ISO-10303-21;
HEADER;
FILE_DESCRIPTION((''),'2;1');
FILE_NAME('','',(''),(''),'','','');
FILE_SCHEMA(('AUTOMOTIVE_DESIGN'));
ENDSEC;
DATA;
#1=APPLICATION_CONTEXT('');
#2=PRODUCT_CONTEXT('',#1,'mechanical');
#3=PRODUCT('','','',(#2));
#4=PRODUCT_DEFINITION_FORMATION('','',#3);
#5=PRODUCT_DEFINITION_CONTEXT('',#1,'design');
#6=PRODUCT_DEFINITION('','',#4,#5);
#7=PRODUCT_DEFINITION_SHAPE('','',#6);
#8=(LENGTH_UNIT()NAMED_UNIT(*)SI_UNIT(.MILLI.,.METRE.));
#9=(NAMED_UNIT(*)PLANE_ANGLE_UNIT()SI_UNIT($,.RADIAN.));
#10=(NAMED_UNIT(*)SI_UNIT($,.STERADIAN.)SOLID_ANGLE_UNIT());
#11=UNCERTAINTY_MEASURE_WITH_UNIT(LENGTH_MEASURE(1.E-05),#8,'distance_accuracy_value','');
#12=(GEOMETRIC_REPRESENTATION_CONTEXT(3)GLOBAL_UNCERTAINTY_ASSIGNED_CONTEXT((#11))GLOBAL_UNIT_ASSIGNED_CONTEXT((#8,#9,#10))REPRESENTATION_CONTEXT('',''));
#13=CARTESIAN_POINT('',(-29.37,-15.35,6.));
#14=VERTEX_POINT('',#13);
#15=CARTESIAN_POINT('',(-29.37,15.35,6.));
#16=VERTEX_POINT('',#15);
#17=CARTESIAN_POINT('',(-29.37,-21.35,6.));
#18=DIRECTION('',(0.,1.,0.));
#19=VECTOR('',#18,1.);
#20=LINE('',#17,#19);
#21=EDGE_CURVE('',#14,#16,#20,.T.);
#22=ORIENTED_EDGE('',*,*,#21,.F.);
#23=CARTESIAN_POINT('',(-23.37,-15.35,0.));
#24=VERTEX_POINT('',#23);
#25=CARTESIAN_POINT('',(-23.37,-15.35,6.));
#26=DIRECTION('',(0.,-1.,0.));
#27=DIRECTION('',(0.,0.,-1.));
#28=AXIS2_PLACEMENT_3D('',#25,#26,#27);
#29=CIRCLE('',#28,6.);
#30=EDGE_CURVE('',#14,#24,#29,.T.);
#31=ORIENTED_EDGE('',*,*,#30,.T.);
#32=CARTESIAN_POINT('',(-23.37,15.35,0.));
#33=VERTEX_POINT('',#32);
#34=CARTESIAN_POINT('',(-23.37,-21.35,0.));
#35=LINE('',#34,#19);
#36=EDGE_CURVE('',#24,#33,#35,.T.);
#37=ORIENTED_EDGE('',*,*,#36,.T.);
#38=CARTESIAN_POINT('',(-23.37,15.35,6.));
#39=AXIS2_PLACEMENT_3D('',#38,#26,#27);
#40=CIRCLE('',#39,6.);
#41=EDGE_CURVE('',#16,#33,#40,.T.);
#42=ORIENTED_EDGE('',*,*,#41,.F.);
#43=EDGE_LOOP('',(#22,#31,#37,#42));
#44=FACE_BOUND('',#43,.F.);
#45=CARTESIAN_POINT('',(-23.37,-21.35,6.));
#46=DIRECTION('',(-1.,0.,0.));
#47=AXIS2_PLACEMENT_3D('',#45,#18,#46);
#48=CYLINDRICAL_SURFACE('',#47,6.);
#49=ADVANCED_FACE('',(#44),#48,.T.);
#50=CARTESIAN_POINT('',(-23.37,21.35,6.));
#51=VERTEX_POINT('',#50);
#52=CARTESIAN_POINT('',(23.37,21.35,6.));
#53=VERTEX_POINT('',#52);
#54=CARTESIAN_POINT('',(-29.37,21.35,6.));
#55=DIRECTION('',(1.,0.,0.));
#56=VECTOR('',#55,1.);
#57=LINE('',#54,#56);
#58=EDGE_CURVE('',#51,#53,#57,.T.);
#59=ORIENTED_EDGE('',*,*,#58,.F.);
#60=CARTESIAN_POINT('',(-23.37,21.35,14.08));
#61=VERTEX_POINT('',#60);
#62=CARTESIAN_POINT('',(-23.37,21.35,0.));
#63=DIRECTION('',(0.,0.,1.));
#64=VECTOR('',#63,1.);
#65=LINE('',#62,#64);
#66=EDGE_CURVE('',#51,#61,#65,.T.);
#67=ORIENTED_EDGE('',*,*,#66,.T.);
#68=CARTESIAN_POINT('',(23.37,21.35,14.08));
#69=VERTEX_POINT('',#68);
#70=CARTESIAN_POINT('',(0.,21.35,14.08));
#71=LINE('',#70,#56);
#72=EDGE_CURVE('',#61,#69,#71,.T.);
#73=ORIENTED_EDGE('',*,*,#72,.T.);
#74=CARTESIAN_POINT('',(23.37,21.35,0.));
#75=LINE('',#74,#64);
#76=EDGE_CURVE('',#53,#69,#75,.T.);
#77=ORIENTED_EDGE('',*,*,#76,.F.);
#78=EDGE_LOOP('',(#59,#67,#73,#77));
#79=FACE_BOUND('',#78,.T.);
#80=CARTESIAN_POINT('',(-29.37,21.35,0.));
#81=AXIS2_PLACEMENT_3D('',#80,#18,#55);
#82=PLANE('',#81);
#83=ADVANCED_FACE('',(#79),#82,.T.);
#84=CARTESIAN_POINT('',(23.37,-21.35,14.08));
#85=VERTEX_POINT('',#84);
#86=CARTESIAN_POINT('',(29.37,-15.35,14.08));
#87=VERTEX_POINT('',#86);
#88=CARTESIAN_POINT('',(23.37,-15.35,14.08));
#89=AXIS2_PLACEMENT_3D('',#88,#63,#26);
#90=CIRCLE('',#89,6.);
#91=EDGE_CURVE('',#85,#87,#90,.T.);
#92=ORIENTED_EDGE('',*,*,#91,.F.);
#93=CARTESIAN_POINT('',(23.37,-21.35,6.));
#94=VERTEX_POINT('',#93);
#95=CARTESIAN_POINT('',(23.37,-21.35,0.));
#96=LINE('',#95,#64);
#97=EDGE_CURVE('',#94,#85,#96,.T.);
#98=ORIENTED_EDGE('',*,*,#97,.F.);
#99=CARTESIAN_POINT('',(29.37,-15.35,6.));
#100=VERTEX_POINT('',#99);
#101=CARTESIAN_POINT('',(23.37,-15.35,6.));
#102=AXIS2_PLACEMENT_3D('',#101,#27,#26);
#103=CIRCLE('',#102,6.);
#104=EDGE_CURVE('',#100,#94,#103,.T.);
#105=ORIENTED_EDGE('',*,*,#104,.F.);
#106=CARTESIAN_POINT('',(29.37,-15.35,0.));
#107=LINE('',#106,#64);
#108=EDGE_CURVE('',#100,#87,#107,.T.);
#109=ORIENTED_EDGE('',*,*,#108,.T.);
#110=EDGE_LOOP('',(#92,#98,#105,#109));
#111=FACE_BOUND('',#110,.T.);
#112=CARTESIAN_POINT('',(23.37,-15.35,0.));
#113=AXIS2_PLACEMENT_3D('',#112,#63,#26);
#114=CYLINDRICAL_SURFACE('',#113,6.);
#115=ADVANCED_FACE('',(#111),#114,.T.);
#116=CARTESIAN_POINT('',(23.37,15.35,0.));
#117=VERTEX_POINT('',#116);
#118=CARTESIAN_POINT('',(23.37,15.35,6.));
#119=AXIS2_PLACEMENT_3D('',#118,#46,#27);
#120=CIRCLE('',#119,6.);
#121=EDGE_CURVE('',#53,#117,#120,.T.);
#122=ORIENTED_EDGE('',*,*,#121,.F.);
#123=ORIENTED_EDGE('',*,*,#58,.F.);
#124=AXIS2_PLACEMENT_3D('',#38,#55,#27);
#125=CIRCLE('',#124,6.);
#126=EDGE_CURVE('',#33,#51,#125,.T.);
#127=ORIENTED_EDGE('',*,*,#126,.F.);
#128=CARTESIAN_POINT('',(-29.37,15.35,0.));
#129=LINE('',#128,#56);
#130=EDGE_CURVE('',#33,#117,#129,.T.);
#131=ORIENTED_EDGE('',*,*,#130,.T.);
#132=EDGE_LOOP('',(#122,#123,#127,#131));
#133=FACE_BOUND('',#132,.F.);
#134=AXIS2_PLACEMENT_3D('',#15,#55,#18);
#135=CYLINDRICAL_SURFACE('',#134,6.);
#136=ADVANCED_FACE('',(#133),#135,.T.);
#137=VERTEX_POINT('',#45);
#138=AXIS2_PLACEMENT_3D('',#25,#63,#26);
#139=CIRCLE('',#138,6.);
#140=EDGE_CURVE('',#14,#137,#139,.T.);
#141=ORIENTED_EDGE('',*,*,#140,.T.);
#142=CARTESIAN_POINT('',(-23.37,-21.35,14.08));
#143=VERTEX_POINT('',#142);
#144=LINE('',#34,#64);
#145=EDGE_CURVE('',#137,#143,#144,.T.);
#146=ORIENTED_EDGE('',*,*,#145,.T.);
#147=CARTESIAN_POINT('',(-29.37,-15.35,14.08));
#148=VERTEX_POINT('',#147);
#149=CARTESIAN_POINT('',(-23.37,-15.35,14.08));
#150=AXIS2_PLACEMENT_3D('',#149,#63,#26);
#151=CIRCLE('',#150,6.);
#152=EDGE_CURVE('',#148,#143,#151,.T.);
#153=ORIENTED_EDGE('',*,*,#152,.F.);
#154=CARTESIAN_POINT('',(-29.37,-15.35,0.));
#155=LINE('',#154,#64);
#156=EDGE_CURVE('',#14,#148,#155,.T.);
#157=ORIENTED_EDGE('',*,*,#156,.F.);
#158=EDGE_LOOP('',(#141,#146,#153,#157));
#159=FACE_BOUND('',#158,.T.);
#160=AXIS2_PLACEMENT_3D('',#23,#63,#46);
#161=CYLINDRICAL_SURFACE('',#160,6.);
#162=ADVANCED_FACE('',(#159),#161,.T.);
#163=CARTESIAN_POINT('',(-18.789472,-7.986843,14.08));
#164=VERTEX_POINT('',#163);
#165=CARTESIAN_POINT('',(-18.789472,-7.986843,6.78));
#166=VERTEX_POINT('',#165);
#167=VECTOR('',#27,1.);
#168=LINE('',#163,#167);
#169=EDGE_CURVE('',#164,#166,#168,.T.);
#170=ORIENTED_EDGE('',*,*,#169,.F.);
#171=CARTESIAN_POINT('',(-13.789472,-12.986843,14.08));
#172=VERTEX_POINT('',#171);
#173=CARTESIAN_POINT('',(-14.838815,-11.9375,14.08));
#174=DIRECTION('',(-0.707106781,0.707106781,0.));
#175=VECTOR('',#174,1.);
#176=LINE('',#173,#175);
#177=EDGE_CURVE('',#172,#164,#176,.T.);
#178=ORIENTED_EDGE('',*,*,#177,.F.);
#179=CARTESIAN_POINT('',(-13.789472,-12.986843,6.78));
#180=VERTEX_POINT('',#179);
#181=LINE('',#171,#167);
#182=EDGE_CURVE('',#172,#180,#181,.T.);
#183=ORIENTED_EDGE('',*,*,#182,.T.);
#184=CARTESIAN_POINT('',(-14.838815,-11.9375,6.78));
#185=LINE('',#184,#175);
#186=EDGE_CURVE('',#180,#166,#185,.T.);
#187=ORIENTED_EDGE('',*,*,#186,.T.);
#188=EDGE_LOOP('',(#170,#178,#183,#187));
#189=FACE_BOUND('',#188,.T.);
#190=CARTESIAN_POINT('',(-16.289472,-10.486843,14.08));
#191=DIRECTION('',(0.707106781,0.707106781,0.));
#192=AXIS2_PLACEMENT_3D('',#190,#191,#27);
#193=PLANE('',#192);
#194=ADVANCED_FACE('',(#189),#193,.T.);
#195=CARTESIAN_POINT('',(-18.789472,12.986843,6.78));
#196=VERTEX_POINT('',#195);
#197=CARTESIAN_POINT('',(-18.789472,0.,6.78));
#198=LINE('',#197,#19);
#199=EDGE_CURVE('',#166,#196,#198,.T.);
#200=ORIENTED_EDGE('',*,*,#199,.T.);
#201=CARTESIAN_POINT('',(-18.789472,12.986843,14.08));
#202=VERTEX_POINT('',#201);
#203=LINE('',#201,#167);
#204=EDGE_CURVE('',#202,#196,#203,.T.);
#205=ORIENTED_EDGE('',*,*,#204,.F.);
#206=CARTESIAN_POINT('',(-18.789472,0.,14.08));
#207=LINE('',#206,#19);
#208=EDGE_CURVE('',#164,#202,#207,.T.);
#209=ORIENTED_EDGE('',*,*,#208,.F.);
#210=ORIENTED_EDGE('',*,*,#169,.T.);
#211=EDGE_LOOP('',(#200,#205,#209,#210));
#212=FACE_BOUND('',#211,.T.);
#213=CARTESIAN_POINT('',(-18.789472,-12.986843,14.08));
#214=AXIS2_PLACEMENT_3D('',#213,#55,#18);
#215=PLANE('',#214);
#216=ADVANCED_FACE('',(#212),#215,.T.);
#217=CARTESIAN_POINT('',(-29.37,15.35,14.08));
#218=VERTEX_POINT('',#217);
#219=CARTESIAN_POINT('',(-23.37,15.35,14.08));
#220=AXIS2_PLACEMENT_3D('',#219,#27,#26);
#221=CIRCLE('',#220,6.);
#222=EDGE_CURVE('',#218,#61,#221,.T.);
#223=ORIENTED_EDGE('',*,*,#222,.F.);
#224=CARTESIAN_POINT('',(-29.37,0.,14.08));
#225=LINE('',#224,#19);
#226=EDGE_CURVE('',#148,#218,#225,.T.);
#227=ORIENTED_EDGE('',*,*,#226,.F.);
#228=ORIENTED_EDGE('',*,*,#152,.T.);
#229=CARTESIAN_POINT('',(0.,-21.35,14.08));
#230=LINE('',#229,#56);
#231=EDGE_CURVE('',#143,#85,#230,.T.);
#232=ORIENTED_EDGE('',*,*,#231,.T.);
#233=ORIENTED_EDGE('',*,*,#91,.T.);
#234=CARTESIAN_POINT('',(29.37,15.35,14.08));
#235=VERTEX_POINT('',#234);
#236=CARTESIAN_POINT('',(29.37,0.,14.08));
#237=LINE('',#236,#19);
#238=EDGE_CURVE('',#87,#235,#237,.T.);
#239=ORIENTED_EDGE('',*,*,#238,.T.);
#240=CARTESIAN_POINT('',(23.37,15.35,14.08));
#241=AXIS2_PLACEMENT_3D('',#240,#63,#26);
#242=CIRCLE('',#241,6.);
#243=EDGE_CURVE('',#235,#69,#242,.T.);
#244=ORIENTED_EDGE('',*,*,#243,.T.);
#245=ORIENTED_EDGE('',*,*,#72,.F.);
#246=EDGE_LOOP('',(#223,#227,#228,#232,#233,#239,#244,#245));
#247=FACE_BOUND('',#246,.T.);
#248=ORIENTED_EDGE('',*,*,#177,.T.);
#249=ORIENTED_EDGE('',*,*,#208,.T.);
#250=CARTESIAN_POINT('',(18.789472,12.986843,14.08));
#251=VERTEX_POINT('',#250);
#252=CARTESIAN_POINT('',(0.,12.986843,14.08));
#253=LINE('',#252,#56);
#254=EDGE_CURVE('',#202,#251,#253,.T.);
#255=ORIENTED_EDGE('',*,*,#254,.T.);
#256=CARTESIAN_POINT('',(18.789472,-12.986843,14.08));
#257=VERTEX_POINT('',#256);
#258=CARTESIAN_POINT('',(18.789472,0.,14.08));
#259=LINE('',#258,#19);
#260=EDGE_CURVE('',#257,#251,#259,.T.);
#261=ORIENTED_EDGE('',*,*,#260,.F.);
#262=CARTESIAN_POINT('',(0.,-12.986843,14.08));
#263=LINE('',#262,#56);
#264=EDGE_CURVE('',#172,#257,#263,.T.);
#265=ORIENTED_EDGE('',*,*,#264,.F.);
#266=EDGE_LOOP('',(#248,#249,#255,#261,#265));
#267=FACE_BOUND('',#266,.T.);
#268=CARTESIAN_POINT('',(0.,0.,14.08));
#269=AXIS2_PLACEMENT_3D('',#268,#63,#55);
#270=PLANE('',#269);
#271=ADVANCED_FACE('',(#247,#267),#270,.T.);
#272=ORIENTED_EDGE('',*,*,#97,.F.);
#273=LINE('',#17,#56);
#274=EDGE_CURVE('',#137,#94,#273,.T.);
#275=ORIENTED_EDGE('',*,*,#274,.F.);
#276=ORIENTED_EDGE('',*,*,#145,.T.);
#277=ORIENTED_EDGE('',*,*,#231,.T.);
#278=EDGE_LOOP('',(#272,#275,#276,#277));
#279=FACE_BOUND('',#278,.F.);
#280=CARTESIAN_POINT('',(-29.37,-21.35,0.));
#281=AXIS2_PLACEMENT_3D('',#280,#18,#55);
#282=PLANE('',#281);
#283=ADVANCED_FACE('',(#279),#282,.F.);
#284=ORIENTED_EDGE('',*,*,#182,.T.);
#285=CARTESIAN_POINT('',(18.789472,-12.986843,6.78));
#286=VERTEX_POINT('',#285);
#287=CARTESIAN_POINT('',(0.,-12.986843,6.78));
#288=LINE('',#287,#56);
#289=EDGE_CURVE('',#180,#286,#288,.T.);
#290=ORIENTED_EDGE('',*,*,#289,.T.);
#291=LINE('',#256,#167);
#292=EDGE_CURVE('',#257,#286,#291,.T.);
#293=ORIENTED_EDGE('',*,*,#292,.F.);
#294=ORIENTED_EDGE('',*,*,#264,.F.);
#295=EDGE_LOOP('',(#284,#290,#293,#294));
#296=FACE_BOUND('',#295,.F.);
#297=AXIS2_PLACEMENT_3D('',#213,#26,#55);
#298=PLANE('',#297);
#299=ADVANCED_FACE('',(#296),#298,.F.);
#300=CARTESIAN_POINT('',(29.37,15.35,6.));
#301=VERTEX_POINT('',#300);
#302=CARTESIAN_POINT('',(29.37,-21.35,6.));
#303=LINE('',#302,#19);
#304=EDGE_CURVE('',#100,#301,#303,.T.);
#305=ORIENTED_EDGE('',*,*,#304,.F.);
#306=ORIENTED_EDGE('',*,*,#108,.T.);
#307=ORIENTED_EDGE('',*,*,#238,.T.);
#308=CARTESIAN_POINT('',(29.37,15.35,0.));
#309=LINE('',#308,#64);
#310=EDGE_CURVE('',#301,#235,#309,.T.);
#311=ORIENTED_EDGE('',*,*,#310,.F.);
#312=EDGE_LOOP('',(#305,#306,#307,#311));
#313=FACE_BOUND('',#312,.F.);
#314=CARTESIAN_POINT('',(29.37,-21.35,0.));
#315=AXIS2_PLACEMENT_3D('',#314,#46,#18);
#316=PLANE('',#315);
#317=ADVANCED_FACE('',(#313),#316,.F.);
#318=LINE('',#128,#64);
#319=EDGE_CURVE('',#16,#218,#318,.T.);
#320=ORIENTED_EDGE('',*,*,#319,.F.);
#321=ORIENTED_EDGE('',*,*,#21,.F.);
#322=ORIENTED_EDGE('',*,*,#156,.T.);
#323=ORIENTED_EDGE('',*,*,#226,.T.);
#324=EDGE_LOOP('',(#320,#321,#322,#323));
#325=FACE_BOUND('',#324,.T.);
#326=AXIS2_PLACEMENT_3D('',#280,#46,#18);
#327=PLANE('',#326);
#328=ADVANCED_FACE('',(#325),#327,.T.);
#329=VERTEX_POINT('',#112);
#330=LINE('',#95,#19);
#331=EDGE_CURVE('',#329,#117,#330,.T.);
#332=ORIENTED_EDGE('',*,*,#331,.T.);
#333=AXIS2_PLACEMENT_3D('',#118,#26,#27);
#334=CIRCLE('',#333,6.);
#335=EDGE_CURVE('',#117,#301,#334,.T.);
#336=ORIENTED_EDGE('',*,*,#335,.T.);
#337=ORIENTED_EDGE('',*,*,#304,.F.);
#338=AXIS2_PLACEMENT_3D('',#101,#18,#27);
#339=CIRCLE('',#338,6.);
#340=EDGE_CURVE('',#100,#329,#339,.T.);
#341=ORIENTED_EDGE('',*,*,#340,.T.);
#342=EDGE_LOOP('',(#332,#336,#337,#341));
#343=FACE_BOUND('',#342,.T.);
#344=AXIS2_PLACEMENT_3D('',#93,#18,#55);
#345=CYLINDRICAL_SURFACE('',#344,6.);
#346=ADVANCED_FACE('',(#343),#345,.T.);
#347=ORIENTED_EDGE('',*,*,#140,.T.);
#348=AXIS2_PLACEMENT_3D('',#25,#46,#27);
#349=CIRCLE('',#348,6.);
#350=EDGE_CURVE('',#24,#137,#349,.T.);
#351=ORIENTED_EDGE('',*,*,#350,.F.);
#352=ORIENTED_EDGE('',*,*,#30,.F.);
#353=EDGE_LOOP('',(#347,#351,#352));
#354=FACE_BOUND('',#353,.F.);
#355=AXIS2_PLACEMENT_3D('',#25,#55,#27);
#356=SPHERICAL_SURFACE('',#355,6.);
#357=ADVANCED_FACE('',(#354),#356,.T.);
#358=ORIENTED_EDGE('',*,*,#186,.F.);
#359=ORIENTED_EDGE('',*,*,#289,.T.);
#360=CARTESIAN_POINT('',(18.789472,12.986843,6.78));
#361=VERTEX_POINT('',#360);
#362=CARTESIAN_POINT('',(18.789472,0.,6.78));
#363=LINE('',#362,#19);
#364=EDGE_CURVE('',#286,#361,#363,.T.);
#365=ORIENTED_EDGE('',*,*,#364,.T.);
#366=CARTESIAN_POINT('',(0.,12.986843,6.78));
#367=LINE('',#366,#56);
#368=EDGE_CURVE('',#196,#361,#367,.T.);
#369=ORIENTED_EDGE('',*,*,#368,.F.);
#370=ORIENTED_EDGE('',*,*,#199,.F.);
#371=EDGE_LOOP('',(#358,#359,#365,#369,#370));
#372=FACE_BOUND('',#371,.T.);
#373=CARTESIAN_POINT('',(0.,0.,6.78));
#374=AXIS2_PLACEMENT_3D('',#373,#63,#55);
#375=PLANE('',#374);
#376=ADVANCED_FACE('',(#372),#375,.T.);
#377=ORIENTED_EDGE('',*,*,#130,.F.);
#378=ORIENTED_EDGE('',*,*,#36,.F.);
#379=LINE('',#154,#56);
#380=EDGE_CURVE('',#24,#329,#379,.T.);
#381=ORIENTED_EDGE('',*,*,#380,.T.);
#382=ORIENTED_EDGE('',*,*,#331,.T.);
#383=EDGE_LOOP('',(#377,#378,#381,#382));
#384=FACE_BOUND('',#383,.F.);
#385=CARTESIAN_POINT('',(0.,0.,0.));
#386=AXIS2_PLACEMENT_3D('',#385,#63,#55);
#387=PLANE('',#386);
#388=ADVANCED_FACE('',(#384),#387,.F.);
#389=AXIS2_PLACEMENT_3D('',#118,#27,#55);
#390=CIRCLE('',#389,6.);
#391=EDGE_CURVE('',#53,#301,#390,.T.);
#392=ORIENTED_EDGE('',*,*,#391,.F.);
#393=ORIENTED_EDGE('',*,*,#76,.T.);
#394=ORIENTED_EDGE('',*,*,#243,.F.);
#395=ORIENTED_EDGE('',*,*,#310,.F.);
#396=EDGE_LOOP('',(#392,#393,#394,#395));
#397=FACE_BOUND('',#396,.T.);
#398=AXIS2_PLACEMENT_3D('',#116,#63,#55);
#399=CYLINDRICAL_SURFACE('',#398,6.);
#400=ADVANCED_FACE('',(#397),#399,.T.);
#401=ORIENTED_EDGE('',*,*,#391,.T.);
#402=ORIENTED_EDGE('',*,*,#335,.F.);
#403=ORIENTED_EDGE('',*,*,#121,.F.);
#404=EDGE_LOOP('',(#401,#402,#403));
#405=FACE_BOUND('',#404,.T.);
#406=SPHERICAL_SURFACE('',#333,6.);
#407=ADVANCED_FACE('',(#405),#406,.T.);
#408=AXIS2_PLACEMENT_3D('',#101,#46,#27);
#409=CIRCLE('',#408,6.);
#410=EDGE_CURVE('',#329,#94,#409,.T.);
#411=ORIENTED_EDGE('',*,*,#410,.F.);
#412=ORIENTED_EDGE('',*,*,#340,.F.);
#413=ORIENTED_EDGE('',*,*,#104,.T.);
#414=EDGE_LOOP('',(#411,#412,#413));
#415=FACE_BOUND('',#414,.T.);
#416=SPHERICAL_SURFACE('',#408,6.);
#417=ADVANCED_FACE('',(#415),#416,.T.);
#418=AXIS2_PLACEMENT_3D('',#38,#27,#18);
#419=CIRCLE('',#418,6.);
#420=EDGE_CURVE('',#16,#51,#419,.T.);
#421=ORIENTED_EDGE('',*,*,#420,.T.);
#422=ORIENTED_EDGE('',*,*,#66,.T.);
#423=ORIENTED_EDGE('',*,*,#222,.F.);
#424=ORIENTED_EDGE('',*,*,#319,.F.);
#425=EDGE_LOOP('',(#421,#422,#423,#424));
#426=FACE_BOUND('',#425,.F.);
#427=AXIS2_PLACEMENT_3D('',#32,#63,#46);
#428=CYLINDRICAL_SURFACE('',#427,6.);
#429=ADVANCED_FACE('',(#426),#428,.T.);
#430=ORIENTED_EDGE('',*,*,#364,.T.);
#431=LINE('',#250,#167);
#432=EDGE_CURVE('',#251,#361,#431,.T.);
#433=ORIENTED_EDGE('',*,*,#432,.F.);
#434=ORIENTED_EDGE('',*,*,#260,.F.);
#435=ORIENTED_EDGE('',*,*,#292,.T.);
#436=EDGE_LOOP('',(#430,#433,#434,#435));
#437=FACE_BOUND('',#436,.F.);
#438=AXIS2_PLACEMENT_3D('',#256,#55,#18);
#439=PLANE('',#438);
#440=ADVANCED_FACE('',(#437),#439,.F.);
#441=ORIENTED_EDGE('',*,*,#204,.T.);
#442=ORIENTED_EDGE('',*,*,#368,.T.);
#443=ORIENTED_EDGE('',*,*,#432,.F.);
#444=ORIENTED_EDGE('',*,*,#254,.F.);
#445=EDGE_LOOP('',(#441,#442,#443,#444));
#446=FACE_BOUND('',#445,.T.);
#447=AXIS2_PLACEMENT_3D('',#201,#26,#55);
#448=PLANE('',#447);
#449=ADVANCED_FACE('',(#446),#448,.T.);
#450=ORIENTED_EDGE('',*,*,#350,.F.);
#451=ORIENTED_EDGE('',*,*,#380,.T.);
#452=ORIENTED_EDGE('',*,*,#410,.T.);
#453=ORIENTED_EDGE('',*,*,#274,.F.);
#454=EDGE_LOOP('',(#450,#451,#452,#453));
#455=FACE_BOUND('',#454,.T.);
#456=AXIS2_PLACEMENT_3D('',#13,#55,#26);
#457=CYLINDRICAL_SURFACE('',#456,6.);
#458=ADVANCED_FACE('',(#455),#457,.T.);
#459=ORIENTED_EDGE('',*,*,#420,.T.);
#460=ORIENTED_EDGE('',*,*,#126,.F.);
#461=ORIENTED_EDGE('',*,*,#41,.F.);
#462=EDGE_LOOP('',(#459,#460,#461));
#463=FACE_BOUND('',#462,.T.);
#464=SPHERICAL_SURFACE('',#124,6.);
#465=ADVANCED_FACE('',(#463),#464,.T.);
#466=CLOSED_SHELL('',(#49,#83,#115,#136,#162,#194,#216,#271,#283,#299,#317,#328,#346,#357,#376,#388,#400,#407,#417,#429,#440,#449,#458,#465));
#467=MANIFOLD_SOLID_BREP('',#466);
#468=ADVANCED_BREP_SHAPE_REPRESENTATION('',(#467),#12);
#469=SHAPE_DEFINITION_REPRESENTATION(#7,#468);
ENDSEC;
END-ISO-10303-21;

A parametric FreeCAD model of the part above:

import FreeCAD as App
import Part
import Sketcher
from FreeCAD import Vector
Q = App.Units.Quantity


def edges_at(feature, points):
    """Names of the edges that pass closest to the given points."""
    edges = feature.Shape.Edges
    near = lambda p: min(range(len(edges)), key=lambda i: edges[i].distToShape(Part.Vertex(*p))[0])
    return sorted({f"Edge{near(p) + 1}" for p in points})

doc = App.newDocument("Part")
params = doc.addObject("Spreadsheet::Sheet", "Params")
for row, (alias, value) in enumerate([
    ("sketch1_height", "42.7 mm"),
    ("sketch1_width", "58.74 mm"),
    ("pad1_length", "14.08 mm"),
    ("fillet_radius", "6 mm"),
    ("pocket1_length", "7.3 mm"),
    ("chamfer_size", "5 mm"),
], start=1):
    params.set(f"A{row}", alias)
    params.set(f"B{row}", "=" + value)
    params.setAlias(f"B{row}", alias)

body = doc.addObject("PartDesign::Body", "Body")

# Sketch on XY plane
sketch1 = body.newObject("Sketcher::SketchObject", "Sketch")
sketch1.AttachmentSupport = (doc.getObject("XY_Plane"), [""])
sketch1.MapMode = "FlatFace"
sketch1.addGeometry(Part.LineSegment(Vector(-29, 21, 0), Vector(-29, -21, 0)), False)
sketch1.addGeometry(Part.LineSegment(Vector(-29, -21, 0), Vector(29, -21, 0)), False)
sketch1.addGeometry(Part.LineSegment(Vector(29, -21, 0), Vector(29, 21, 0)), False)
sketch1.addGeometry(Part.LineSegment(Vector(29, 21, 0), Vector(-29, 21, 0)), False)
sketch1.addConstraint(Sketcher.Constraint("Coincident", 0, 2, 1, 1))
sketch1.addConstraint(Sketcher.Constraint("Coincident", 1, 2, 2, 1))
sketch1.addConstraint(Sketcher.Constraint("Coincident", 2, 2, 3, 1))
sketch1.addConstraint(Sketcher.Constraint("Coincident", 3, 2, 0, 1))
sketch1.addConstraint(Sketcher.Constraint("Vertical", 0))
sketch1.addConstraint(Sketcher.Constraint("Horizontal", 1))
sketch1.addConstraint(Sketcher.Constraint("Vertical", 2))
sketch1.addConstraint(Sketcher.Constraint("Horizontal", 3))
sketch1.addConstraint(Sketcher.Constraint("Symmetric", 0, 2, 2, 2, -1, 1))
sketch1.addConstraint(Sketcher.Constraint("DistanceY", 0, 2, 0, 1, Q("42.7 mm")))
sketch1.addConstraint(Sketcher.Constraint("DistanceX", 1, 1, 1, 2, Q("58.74 mm")))
sketch1.setExpression("Constraints[9]", "Params.sketch1_height")
sketch1.setExpression("Constraints[10]", "Params.sketch1_width")
pad1 = body.newObject("PartDesign::Pad", "Pad")
pad1.Profile = sketch1
pad1.setExpression("Length", "Params.pad1_length")
doc.recompute()

fillet = body.newObject("PartDesign::Fillet", "Fillet")
fillet.Base = (pad1, edges_at(pad1, [
    (0, -21.35, 0),
    (29.37, 0, 0),
    (0, 21.35, 0),
    (-29.37, 0, 0),
    (29.37, -21.35, 7.04),
    (29.37, 21.35, 7.04),
    (-29.37, 21.35, 7.04),
    (-29.37, -21.35, 7.04),
]))
fillet.setExpression("Radius", "Params.fillet_radius")

# Sketch on XY plane
sketch2 = body.newObject("Sketcher::SketchObject", "Sketch001")
sketch2.AttachmentSupport = (doc.getObject("XY_Plane"), [""])
sketch2.MapMode = "FlatFace"
sketch2.AttachmentOffset = App.Placement(Vector(0, 0, 14.08), App.Rotation())
sketch2.addGeometry(Part.LineSegment(Vector(-19, 13, 0), Vector(-19, -13, 0)), False)
sketch2.addGeometry(Part.LineSegment(Vector(-19, -13, 0), Vector(19, -13, 0)), False)
sketch2.addGeometry(Part.LineSegment(Vector(19, -13, 0), Vector(19, 13, 0)), False)
sketch2.addGeometry(Part.LineSegment(Vector(19, 13, 0), Vector(-19, 13, 0)), False)
sketch2.addConstraint(Sketcher.Constraint("Coincident", 0, 2, 1, 1))
sketch2.addConstraint(Sketcher.Constraint("Coincident", 1, 2, 2, 1))
sketch2.addConstraint(Sketcher.Constraint("Coincident", 2, 2, 3, 1))
sketch2.addConstraint(Sketcher.Constraint("Coincident", 3, 2, 0, 1))
sketch2.addConstraint(Sketcher.Constraint("Vertical", 0))
sketch2.addConstraint(Sketcher.Constraint("Horizontal", 1))
sketch2.addConstraint(Sketcher.Constraint("Vertical", 2))
sketch2.addConstraint(Sketcher.Constraint("Horizontal", 3))
sketch2.addConstraint(Sketcher.Constraint("Symmetric", 0, 2, 2, 2, -1, 1))
sketch2.addConstraint(Sketcher.Constraint("DistanceX", 1, 1, 1, 2, Q("37.578944 mm")))
sketch2.addConstraint(Sketcher.Constraint("DistanceY", 0, 2, 0, 1, Q("25.973686 mm")))
pocket1 = body.newObject("PartDesign::Pocket", "Pocket")
pocket1.Profile = sketch2
pocket1.setExpression("Length", "Params.pocket1_length")
doc.recompute()

chamfer = body.newObject("PartDesign::Chamfer", "Chamfer")
chamfer.Base = (pocket1, edges_at(pocket1, [(-18.789, -12.987, 10.43)]))
chamfer.setExpression("Size", "Params.chamfer_size")

doc.recompute()
